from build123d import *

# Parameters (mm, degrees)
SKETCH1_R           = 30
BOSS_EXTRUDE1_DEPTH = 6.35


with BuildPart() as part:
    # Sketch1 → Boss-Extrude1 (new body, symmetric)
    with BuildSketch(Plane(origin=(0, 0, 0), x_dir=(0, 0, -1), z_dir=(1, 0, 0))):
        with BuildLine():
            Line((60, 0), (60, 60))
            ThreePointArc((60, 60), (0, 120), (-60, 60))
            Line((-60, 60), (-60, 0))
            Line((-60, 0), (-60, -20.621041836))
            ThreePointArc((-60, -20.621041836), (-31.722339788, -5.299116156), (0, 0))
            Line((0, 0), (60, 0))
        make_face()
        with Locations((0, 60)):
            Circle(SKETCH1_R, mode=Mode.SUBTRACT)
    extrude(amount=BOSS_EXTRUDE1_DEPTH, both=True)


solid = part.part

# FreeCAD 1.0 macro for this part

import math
import FreeCAD as App
import Part
import Sketcher
Q = App.Units.Quantity

doc = App.newDocument("Part")
body = doc.addObject("PartDesign::Body", "Body")

sketch1 = body.newObject("Sketcher::SketchObject", "Sketch")
sketch1.AttachmentSupport = (doc.getObject("YZ_Plane"), [""])
sketch1.MapMode = "FlatFace"
sketch1.addGeometry([
    Part.LineSegment(App.Vector(0, -60, 0), App.Vector(60, -60, 0)),
    Part.ArcOfCircle(Part.Circle(App.Vector(60, 0, 0), App.Vector(0, 0, 1), 60), math.radians(-90), math.radians(90)),
    Part.LineSegment(App.Vector(60, 60, 0), App.Vector(-20.621042, 60, 0)),
    Part.ArcOfCircle(Part.Circle(App.Vector(-97.6, 0, 0), App.Vector(0, 0, 1), 97.6), math.radians(0), math.radians(37.934055)),
    Part.LineSegment(App.Vector(0, 0, 0), App.Vector(0, -60, 0)),
    Part.Circle(App.Vector(60, 0, 0), App.Vector(0, 0, 1), 30),
], False)
sketch1.addConstraint([
    Sketcher.Constraint("Tangent", 0, 2, 1, 1),
    Sketcher.Constraint("Tangent", 1, 2, 2, 1),
    Sketcher.Constraint("Coincident", 2, 2, 3, 2),
    Sketcher.Constraint("Tangent", 3, 1, 4, 1),
    Sketcher.Constraint("Coincident", 4, 2, 0, 1),
    Sketcher.Constraint("Horizontal", 0),
    Sketcher.Constraint("Horizontal", 2),
    Sketcher.Constraint("Vertical", 4),
    Sketcher.Constraint("Coincident", 3, 1, -1, 1),
    Sketcher.Constraint("Coincident", 5, 3, 1, 3),
    Sketcher.Constraint("PointOnObject", 1, 3, -1),
    Sketcher.Constraint("Equal", 0, 4),
    Sketcher.Constraint("Diameter", 5, Q("60 mm")),
    Sketcher.Constraint("Radius", 1, Q("60 mm")),
    Sketcher.Constraint("Radius", 3, Q("97.6 mm")),
])
pad1 = body.newObject("PartDesign::Pad", "Pad")
pad1.Profile = sketch1
pad1.Length = 12.7
pad1.Midplane = True

doc.recompute()
